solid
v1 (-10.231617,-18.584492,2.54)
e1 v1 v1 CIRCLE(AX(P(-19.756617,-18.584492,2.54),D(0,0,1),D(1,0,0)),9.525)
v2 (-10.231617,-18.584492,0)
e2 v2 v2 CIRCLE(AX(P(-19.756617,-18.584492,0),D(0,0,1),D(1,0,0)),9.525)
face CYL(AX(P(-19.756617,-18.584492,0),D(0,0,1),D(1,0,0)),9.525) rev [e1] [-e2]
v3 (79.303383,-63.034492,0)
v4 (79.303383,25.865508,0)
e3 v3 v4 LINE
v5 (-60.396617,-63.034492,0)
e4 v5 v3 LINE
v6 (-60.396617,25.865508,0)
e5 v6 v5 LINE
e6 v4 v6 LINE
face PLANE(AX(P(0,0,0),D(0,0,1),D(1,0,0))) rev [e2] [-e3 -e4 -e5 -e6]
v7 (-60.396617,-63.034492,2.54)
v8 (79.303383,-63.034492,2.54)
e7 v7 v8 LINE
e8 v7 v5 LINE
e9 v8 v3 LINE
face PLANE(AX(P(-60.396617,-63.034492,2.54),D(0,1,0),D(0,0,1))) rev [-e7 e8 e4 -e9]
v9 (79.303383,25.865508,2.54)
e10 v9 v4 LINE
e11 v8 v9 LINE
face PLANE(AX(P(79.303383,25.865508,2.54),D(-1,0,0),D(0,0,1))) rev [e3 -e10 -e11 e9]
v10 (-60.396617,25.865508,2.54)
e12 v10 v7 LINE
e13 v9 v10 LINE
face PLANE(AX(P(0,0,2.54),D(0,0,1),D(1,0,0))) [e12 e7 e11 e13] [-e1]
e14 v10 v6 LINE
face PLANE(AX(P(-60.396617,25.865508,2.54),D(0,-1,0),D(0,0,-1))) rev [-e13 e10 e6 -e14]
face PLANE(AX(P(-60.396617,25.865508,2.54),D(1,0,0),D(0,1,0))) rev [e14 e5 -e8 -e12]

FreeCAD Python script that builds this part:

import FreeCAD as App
import Part
import Sketcher

V = App.Vector
Q = App.Units.Quantity


def add_polygon(sketch, points):
    """Adds a closed chain of lines whose ends are joined by coincident constraints."""
    first, n = sketch.GeometryCount, len(points)
    for a, b in zip(points, points[1:] + points[:1]):
        sketch.addGeometry(Part.LineSegment(App.Vector(*a, 0), App.Vector(*b, 0)), False)
    for i in range(n):
        sketch.addConstraint(Sketcher.Constraint("Coincident", first + i, 2, first + (i + 1) % n, 1))

doc = App.newDocument("Part")
body = doc.addObject("PartDesign::Body", "Body")

sketch1 = doc.addObject("Sketcher::SketchObject", "Sketch")
body.addObject(sketch1)
sketch1.AttachmentSupport = (doc.XY_Plane, [""])
sketch1.MapMode = "FlatFace"
add_polygon(sketch1, [(-60.396617, 25.865508), (-60.396617, -63.034492), (79.303383, -63.034492), (79.303383, 25.865508)])
sketch1.addConstraint(Sketcher.Constraint("Vertical", 0))
sketch1.addConstraint(Sketcher.Constraint("Horizontal", 1))
sketch1.addConstraint(Sketcher.Constraint("Vertical", 2))
sketch1.addConstraint(Sketcher.Constraint("Horizontal", 3))
sketch1.addConstraint(Sketcher.Constraint("DistanceX", 1, 1, 1, 2, Q("5.5 in")))
sketch1.addConstraint(Sketcher.Constraint("DistanceY", 0, 2, 0, 1, Q("3.5 in")))
sketch1.addConstraint(Sketcher.Constraint("DistanceX", 0, 2, -1, 1, 60.396617))
sketch1.addConstraint(Sketcher.Constraint("DistanceY", 0, 2, -1, 1, 63.034492))
pad1 = doc.addObject("PartDesign::Pad", "Pad")
body.addObject(pad1)
pad1.Profile = sketch1
pad1.Length = Q("0.1 in")

sketch2 = doc.addObject("Sketcher::SketchObject", "Sketch001")
body.addObject(sketch2)
sketch2.AttachmentSupport = (doc.XY_Plane, [""])
sketch2.MapMode = "FlatFace"
sketch2.AttachmentOffset = App.Placement(V(0, 0, 0.1 * 25.4), App.Rotation())
sketch2.addGeometry(Part.Circle(V(-19.756617, -18.584492, 0), V(0, 0, 1), 9.525), False)
sketch2.addConstraint(Sketcher.Constraint("Diameter", 0, Q("0.75 in")))
sketch2.addConstraint(Sketcher.Constraint("DistanceX", 0, 3, -1, 1, 19.756617))
sketch2.addConstraint(Sketcher.Constraint("DistanceY", 0, 3, -1, 1, 18.584492))
pocket1 = doc.addObject("PartDesign::Pocket", "Pocket")
body.addObject(pocket1)
pocket1.Profile = sketch2
pocket1.Length = Q("0.1 in")

doc.recompute()
